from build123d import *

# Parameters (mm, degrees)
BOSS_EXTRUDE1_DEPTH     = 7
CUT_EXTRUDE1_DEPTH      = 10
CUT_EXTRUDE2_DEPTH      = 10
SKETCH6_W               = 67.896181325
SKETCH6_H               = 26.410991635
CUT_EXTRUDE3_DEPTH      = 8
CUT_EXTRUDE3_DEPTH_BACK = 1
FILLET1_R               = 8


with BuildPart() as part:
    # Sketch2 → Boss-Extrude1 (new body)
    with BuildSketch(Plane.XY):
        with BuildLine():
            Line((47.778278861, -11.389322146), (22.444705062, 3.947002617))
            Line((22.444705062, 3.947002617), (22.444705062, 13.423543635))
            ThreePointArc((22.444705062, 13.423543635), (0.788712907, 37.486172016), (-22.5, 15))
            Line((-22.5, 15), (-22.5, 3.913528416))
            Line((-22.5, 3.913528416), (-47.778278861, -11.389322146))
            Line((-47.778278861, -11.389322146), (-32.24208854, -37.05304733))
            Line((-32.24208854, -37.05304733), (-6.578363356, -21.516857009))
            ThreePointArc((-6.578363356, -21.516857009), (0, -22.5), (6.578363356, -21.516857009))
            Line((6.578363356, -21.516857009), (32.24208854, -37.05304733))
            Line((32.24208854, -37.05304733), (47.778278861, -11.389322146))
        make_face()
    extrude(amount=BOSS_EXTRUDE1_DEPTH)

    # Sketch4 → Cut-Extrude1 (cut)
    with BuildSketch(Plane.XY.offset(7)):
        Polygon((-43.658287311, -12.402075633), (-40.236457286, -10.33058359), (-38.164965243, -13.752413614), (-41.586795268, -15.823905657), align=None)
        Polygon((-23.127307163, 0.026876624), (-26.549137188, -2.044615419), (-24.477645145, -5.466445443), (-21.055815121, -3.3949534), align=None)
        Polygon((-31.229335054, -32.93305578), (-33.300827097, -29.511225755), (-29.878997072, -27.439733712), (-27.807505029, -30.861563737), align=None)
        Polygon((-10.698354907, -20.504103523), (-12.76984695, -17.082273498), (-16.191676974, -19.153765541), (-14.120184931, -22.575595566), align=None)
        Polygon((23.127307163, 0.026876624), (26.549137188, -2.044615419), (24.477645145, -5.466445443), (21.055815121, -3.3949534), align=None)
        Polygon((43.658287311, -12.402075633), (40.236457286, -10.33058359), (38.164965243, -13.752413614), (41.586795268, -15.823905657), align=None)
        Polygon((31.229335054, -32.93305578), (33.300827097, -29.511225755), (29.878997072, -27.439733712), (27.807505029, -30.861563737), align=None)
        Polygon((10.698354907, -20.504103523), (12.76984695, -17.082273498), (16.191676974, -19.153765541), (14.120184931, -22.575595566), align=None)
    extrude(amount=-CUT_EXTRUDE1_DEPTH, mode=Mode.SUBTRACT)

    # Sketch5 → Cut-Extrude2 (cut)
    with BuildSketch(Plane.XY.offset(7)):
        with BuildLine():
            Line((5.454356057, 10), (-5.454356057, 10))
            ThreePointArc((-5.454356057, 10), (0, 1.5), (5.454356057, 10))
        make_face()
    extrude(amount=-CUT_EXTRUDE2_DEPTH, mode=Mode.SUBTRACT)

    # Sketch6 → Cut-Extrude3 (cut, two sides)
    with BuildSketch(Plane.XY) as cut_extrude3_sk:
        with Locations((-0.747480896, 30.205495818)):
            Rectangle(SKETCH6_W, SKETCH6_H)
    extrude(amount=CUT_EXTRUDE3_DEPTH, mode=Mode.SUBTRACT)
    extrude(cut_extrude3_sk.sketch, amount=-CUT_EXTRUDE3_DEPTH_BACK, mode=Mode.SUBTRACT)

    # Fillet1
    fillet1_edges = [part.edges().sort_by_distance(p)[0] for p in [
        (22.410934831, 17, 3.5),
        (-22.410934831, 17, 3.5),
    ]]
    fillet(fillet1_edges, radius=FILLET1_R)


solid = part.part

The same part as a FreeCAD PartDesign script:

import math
import FreeCAD as App
import Part
import Sketcher
from FreeCAD import Vector


def edges_at(feature, points):
    """Names of the edges that pass closest to the given points."""
    edges = feature.Shape.Edges
    near = lambda p: min(range(len(edges)), key=lambda i: edges[i].distToShape(Part.Vertex(*p))[0])
    return sorted({f"Edge{near(p) + 1}" for p in points})


def add_polygon(sketch, points):
    """Adds a closed chain of lines whose ends are joined by coincident constraints."""
    first, n = sketch.GeometryCount, len(points)
    for a, b in zip(points, points[1:] + points[:1]):
        sketch.addGeometry(Part.LineSegment(App.Vector(*a, 0), App.Vector(*b, 0)), False)
    for i in range(n):
        sketch.addConstraint(Sketcher.Constraint("Coincident", first + i, 2, first + (i + 1) % n, 1))

doc = App.newDocument("Part")
body = doc.addObject("PartDesign::Body", "Body")

sketch1 = body.newObject("Sketcher::SketchObject", "Sketch")
sketch1.AttachmentSupport = (doc.getObject("XY_Plane"), [""])
sketch1.MapMode = "FlatFace"
sketch1.addGeometry([
    Part.LineSegment(Vector(48, -11, 0), Vector(22, 4, 0)),
    Part.LineSegment(Vector(22, 4, 0), Vector(22, 13, 0)),
    Part.ArcOfCircle(Part.Circle(Vector(0, 15, 0), Vector(0, 0, 1), 22), math.radians(-4), math.radians(180)),
    Part.LineSegment(Vector(-22, 15, 0), Vector(-22, 4, 0)),
    Part.LineSegment(Vector(-22, 4, 0), Vector(-48, -11, 0)),
    Part.LineSegment(Vector(-48, -11, 0), Vector(-32, -37, 0)),
    Part.LineSegment(Vector(-32, -37, 0), Vector(-7, -22, 0)),
    Part.ArcOfCircle(Part.Circle(Vector(0, 0, 0), Vector(0, 0, 1), 22), math.radians(-107), math.radians(-73)),
    Part.LineSegment(Vector(7, -22, 0), Vector(32, -37, 0)),
    Part.LineSegment(Vector(32, -37, 0), Vector(48, -11, 0)),
], False)
sketch1.addConstraint([
    Sketcher.Constraint("Coincident", 0, 2, 1, 1),
    Sketcher.Constraint("Coincident", 1, 2, 2, 1),
    Sketcher.Constraint("Tangent", 2, 2, 3, 1),
    Sketcher.Constraint("Coincident", 3, 2, 4, 1),
    Sketcher.Constraint("Coincident", 4, 2, 5, 1),
    Sketcher.Constraint("Coincident", 5, 2, 6, 1),
    Sketcher.Constraint("Coincident", 6, 2, 7, 1),
    Sketcher.Constraint("Coincident", 7, 2, 8, 1),
    Sketcher.Constraint("Coincident", 8, 2, 9, 1),
    Sketcher.Constraint("Coincident", 9, 2, 0, 1),
    Sketcher.Constraint("Vertical", 1),
    Sketcher.Constraint("Vertical", 3),
    Sketcher.Constraint("Coincident", 7, 3, -1, 1),
    Sketcher.Constraint("Equal", 2, 7),
    Sketcher.Constraint("Symmetric", 5, 2, 8, 2, -2),
    Sketcher.Constraint("Symmetric", 4, 2, 9, 2, -2),
    Sketcher.Constraint("PointOnObject", 2, 3, -2),
    Sketcher.Constraint("Perpendicular", 4, 5),
    Sketcher.Constraint("Perpendicular", 5, 6),
    Sketcher.Constraint("Parallel", 0, 8),
    Sketcher.Constraint("Perpendicular", 8, 9),
    Sketcher.Constraint("Equal", 5, 6),
    Sketcher.Constraint("Radius", 2, 22.5),
    Sketcher.Constraint("Distance", 5, 30.0),
    Sketcher.Constraint("DistanceY", -1, 1, 2, 3, 15.0),
    Sketcher.Constraint("DistanceY", 1, 1, 1, 2, 9.476541),
    Sketcher.Constraint("DistanceY", 3, 2, 3, 1, 11.086472),
    Sketcher.Constraint("DistanceX", 4, 2, -1, 1, 47.778279),
])
pad1 = body.newObject("PartDesign::Pad", "Pad")
pad1.Profile = sketch1
pad1.Length = 7

sketch2 = body.newObject("Sketcher::SketchObject", "Sketch001")
sketch2.AttachmentSupport = (doc.getObject("XY_Plane"), [""])
sketch2.MapMode = "FlatFace"
sketch2.AttachmentOffset = App.Placement(Vector(0, 0, 7), App.Rotation())
add_polygon(sketch2, [(-40.2, -10.3), (-43.7, -12.4), (-41.6, -15.8), (-38.2, -13.8)])
add_polygon(sketch2, [(-23.1, 0), (-26.5, -2), (-24.5, -5.5), (-21.1, -3.4)])
add_polygon(sketch2, [(-33.3, -29.5), (-31.2, -32.9), (-27.8, -30.9), (-29.9, -27.4)])
add_polygon(sketch2, [(-10.7, -20.5), (-12.8, -17.1), (-16.2, -19.2), (-14.1, -22.6)])
add_polygon(sketch2, [(26.5, -2), (23.1, 0), (21.1, -3.4), (24.5, -5.5)])
add_polygon(sketch2, [(43.7, -12.4), (40.2, -10.3), (38.2, -13.8), (41.6, -15.8)])
add_polygon(sketch2, [(31.2, -32.9), (33.3, -29.5), (29.9, -27.4), (27.8, -30.9)])
add_polygon(sketch2, [(12.8, -17.1), (10.7, -20.5), (14.1, -22.6), (16.2, -19.2)])
sketch2.addConstraint([
    Sketcher.Constraint("Symmetric", 7, 2, 16, 2, -2),
    Sketcher.Constraint("Symmetric", 6, 2, 17, 2, -2),
    Sketcher.Constraint("Symmetric", 5, 2, 18, 2, -2),
    Sketcher.Constraint("Symmetric", 4, 2, 19, 2, -2),
    Sketcher.Constraint("Symmetric", 3, 2, 20, 2, -2),
    Sketcher.Constraint("Symmetric", 2, 2, 21, 2, -2),
    Sketcher.Constraint("Symmetric", 1, 2, 22, 2, -2),
    Sketcher.Constraint("Symmetric", 0, 2, 23, 2, -2),
    Sketcher.Constraint("Symmetric", 11, 2, 24, 2, -2),
    Sketcher.Constraint("Symmetric", 10, 2, 25, 2, -2),
    Sketcher.Constraint("Symmetric", 9, 2, 26, 2, -2),
    Sketcher.Constraint("Symmetric", 8, 2, 27, 2, -2),
    Sketcher.Constraint("Symmetric", 15, 2, 28, 2, -2),
    Sketcher.Constraint("Symmetric", 14, 2, 29, 2, -2),
    Sketcher.Constraint("Symmetric", 13, 2, 30, 2, -2),
    Sketcher.Constraint("Symmetric", 12, 2, 31, 2, -2),
    Sketcher.Constraint("Perpendicular", 0, 1),
    Sketcher.Constraint("Perpendicular", 1, 2),
    Sketcher.Constraint("Perpendicular", 2, 3),
    Sketcher.Constraint("Perpendicular", 3, 4),
    Sketcher.Constraint("Perpendicular", 4, 5),
    Sketcher.Constraint("Perpendicular", 5, 6),
    Sketcher.Constraint("Perpendicular", 6, 7),
    Sketcher.Constraint("Parallel", 7, 8),
    Sketcher.Constraint("Perpendicular", 8, 9),
    Sketcher.Constraint("Perpendicular", 9, 10),
    Sketcher.Constraint("Perpendicular", 10, 11),
    Sketcher.Constraint("Perpendicular", 11, 12),
    Sketcher.Constraint("Perpendicular", 12, 13),
    Sketcher.Constraint("Perpendicular", 13, 14),
    Sketcher.Constraint("Perpendicular", 14, 15),
    Sketcher.Constraint("Equal", 0, 1),
    Sketcher.Constraint("Equal", 3, 4),
    Sketcher.Constraint("Equal", 4, 5),
    Sketcher.Constraint("Equal", 7, 8),
    Sketcher.Constraint("Equal", 8, 9),
    Sketcher.Constraint("Equal", 11, 12),
    Sketcher.Constraint("Equal", 12, 13),
    Sketcher.Constraint("Distance", 0, 4.0),
    Sketcher.Constraint("DistanceX", 14, 2, 17, 2, 35.176),
    Sketcher.Constraint("DistanceY", 2, 2, 4, 2, 11.707798),
    Sketcher.Constraint("DistanceX", 1, 2, 10, 2, 11.707798),
    Sketcher.Constraint("DistanceX", 5, 2, 12, 2, 11.707798),
    Sketcher.Constraint("DistanceY", 9, 2, 13, 2, 11.707798),
    Sketcher.Constraint("DistanceY", 1, 2, 0, 2, 3.42183),
    Sketcher.Constraint("DistanceX", 3, 2, 4, 2, 13.68732),
    Sketcher.Constraint("DistanceY", 8, 2, 1, 2, 17.10915),
    Sketcher.Constraint("DistanceY", 0, 2, -1, 1, 12.402076),
])
pocket1 = body.newObject("PartDesign::Pocket", "Pocket")
pocket1.Profile = sketch2
pocket1.Length = 10

sketch3 = body.newObject("Sketcher::SketchObject", "Sketch002")
sketch3.AttachmentSupport = (doc.getObject("XY_Plane"), [""])
sketch3.MapMode = "FlatFace"
sketch3.AttachmentOffset = App.Placement(Vector(0, 0, 7), App.Rotation())
sketch3.addGeometry([
    Part.LineSegment(Vector(5, 10, 0), Vector(-5, 10, 0)),
    Part.ArcOfCircle(Part.Circle(Vector(0, 8, 0), Vector(0, 0, 1), 6), math.radians(155), math.radians(385)),
], False)
sketch3.addConstraint([
    Sketcher.Constraint("Coincident", 0, 1, 1, 2),
    Sketcher.Constraint("Coincident", 1, 1, 0, 2),
    Sketcher.Constraint("Horizontal", 0),
    Sketcher.Constraint("PointOnObject", 1, 3, -2),
    Sketcher.Constraint("Radius", 1, 6.0),
    Sketcher.Constraint("DistanceY", -1, 1, 0, 1, 10.0),
    Sketcher.Constraint("DistanceY", -1, 1, 1, 3, 7.5),
])
pocket2 = body.newObject("PartDesign::Pocket", "Pocket001")
pocket2.Profile = sketch3
pocket2.Length = 10

sketch4 = body.newObject("Sketcher::SketchObject", "Sketch003")
sketch4.AttachmentSupport = (doc.getObject("XY_Plane"), [""])
sketch4.MapMode = "FlatFace"
add_polygon(sketch4, [(-35, 43), (-35, 17), (33, 17), (33, 43)])
sketch4.addConstraint([
    Sketcher.Constraint("Vertical", 0),
    Sketcher.Constraint("Horizontal", 1),
    Sketcher.Constraint("Vertical", 2),
    Sketcher.Constraint("Horizontal", 3),
    Sketcher.Constraint("DistanceY", -1, 1, 0, 2, 17.0),
    Sketcher.Constraint("DistanceX", 1, 1, 1, 2, 67.896181),
    Sketcher.Constraint("DistanceY", 0, 2, 0, 1, 26.410992),
    Sketcher.Constraint("DistanceX", 0, 2, -1, 1, 34.695572),
])
pocket3 = body.newObject("PartDesign::Pocket", "Pocket002")
pocket3.Profile = sketch4
pocket3.Type = "ThroughAll"
pocket3.Midplane = True
doc.recompute()

fillet = body.newObject("PartDesign::Fillet", "Fillet")
fillet.Base = (pocket3, edges_at(pocket3, [(22.411, 17, 3.5), (-22.411, 17, 3.5)]))
fillet.Radius = 8

doc.recompute()
